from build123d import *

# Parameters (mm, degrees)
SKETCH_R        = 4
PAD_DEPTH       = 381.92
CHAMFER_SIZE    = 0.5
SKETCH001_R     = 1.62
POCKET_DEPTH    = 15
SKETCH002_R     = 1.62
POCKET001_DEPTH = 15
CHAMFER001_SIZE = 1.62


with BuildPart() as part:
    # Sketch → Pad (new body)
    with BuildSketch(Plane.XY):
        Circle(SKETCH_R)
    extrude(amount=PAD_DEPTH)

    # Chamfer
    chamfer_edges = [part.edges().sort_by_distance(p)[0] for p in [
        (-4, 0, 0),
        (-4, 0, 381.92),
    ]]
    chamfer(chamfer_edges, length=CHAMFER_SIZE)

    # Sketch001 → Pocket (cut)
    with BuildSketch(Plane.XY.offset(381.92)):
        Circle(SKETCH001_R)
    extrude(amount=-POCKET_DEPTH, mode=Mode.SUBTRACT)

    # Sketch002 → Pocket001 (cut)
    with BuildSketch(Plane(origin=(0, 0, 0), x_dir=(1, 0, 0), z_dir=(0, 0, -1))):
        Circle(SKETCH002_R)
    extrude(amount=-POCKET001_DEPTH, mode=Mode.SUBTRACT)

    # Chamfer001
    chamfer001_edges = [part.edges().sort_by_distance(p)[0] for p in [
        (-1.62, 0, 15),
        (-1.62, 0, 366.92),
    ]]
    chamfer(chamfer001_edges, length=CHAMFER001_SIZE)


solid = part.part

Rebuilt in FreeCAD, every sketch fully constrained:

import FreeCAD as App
import Part
import Sketcher

V = App.Vector


def edges_at(feature, points):
    """Names of the edges that pass closest to the given points."""
    edges = feature.Shape.Edges
    near = lambda p: min(range(len(edges)), key=lambda i: edges[i].distToShape(Part.Vertex(*p))[0])
    return sorted({f"Edge{near(p) + 1}" for p in points})

doc = App.newDocument("Part")
body = doc.addObject("PartDesign::Body", "Body")

# Sketch on XY plane
sketch1 = body.newObject("Sketcher::SketchObject", "Sketch")
sketch1.AttachmentSupport = (doc.getObject("XY_Plane"), [""])
sketch1.MapMode = "FlatFace"
sketch1.addGeometry(Part.Circle(V(0, 0, 0), V(0, 0, 1), 4), False)
sketch1.addConstraint([
    Sketcher.Constraint("Coincident", 0, 3, -1, 1),
    Sketcher.Constraint("Diameter", 0, 8.0),
])
pad1 = body.newObject("PartDesign::Pad", "Pad")
pad1.Profile = sketch1
pad1.Length = 381.92
doc.recompute()

chamfer = body.newObject("PartDesign::Chamfer", "Chamfer")
chamfer.Base = (pad1, edges_at(pad1, [(-4, 0, 0), (-4, 0, 381.92)]))
chamfer.Size = 0.5

# Sketch on XY plane
sketch2 = body.newObject("Sketcher::SketchObject", "Sketch001")
sketch2.AttachmentSupport = (doc.getObject("XY_Plane"), [""])
sketch2.MapMode = "FlatFace"
sketch2.AttachmentOffset = App.Placement(V(0, 0, 381.92), App.Rotation())
sketch2.addGeometry(Part.Circle(V(0, 0, 0), V(0, 0, 1), 1.6), False)
sketch2.addConstraint([
    Sketcher.Constraint("Coincident", 0, 3, -1, 1),
    Sketcher.Constraint("Diameter", 0, 3.24),
])
pocket1 = body.newObject("PartDesign::Pocket", "Pocket")
pocket1.Profile = sketch2
pocket1.Length = 15

# Sketch on XY plane
sketch3 = body.newObject("Sketcher::SketchObject", "Sketch002")
sketch3.AttachmentSupport = (doc.getObject("XY_Plane"), [""])
sketch3.MapMode = "FlatFace"
sketch3.addGeometry(Part.Circle(V(0, 0, 0), V(0, 0, 1), 1.6), False)
sketch3.addConstraint([
    Sketcher.Constraint("Coincident", 0, 3, -1, 1),
    Sketcher.Constraint("Diameter", 0, 3.24),
])
pocket2 = body.newObject("PartDesign::Pocket", "Pocket001")
pocket2.Profile = sketch3
pocket2.Length = 15
pocket2.Reversed = True
doc.recompute()

chamfer2 = body.newObject("PartDesign::Chamfer", "Chamfer001")
chamfer2.Base = (pocket2, edges_at(pocket2, [(-1.62, 0, 15), (-1.62, 0, 366.92)]))
chamfer2.Size = 1.62

doc.recompute()
